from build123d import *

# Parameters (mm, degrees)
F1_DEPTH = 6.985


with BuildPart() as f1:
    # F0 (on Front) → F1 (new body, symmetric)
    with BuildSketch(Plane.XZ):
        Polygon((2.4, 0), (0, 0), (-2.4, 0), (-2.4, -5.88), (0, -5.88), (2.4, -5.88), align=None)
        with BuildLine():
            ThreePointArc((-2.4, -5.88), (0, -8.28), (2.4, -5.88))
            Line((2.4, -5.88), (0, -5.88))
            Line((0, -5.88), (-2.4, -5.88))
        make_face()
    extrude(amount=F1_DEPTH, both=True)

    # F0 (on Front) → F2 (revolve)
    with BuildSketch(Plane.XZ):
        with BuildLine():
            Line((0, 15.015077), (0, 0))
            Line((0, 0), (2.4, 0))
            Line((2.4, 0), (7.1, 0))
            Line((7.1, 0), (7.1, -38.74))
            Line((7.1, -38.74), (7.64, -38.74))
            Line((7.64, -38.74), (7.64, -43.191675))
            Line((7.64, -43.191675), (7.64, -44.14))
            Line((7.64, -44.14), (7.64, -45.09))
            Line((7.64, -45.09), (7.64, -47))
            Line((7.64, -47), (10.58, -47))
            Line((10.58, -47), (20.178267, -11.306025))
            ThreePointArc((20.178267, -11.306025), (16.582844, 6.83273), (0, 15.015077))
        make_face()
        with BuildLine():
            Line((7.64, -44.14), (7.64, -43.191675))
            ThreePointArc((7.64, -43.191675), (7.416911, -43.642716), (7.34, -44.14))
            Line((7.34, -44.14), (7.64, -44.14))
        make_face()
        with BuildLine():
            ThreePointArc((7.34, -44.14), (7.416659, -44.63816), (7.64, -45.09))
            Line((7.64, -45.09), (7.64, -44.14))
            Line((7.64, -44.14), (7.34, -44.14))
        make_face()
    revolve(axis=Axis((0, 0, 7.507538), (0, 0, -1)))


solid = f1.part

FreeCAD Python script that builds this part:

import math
import FreeCAD as App
import Part
import Sketcher

V = App.Vector

doc = App.newDocument("Part")
body = doc.addObject("PartDesign::Body", "Body")

# Sketch on XZ plane
sketch1 = doc.addObject("Sketcher::SketchObject", "Sketch")
body.addObject(sketch1)
sketch1.AttachmentSupport = (doc.XZ_Plane, [""])
sketch1.MapMode = "FlatFace"
sketch1.addGeometry([
    Part.LineSegment(V(2.4, 0, 0), V(-2.4, 0, 0)),
    Part.LineSegment(V(-2.4, 0, 0), V(-2.4, -5.9, 0)),
    Part.ArcOfCircle(Part.Circle(V(0, -5.9, 0), V(0, 0, 1), 2.4), math.radians(180), math.radians(360)),
    Part.LineSegment(V(2.4, -5.9, 0), V(2.4, 0, 0)),
], False)
sketch1.addConstraint([
    Sketcher.Constraint("Coincident", 0, 2, 1, 1),
    Sketcher.Constraint("Tangent", 1, 2, 2, 1),
    Sketcher.Constraint("Tangent", 2, 2, 3, 1),
    Sketcher.Constraint("Coincident", 3, 2, 0, 1),
    Sketcher.Constraint("Horizontal", 0),
    Sketcher.Constraint("Vertical", 1),
    Sketcher.Constraint("Vertical", 3),
    Sketcher.Constraint("Symmetric", 0, 2, 3, 2, -1, 1),
    Sketcher.Constraint("Radius", 2, 2.4),
    Sketcher.Constraint("DistanceY", 1, 2, 1, 1, 5.88),
])
pad1 = doc.addObject("PartDesign::Pad", "Pad")
body.addObject(pad1)
pad1.Profile = sketch1
pad1.Length = 13.97
pad1.Midplane = True

# Sketch on XZ plane
sketch2 = doc.addObject("Sketcher::SketchObject", "Sketch001")
body.addObject(sketch2)
sketch2.AttachmentSupport = (doc.XZ_Plane, [""])
sketch2.MapMode = "FlatFace"
sketch2.addGeometry([
    Part.LineSegment(V(0, 15, 0), V(0, 0, 0)),  # 0
    Part.LineSegment(V(0, 0, 0), V(7.1, 0, 0)),  # 1
    Part.LineSegment(V(7.1, 0, 0), V(7.1, -38.7, 0)),  # 2
    Part.LineSegment(V(7.1, -38.7, 0), V(7.6, -38.7, 0)),  # 3
    Part.LineSegment(V(7.6, -38.7, 0), V(7.6, -43.2, 0)),  # 4
    Part.ArcOfCircle(Part.Circle(V(9, -44.1, 0), V(0, 0, 1), 1.7), math.radians(145), math.radians(180)),  # 5
    Part.ArcOfCircle(Part.Circle(V(9, -44.1, 0), V(0, 0, 1), 1.7), math.radians(180), math.radians(215)),  # 6
    Part.LineSegment(V(7.6, -45.1, 0), V(7.6, -47, 0)),  # 7
    Part.LineSegment(V(7.6, -47, 0), V(10.6, -47, 0)),  # 8
    Part.LineSegment(V(10.6, -47, 0), V(20.2, -11.3, 0)),  # 9
    Part.ArcOfCircle(Part.Circle(V(0, -5.9, 0), V(0, 0, 1), 20.9), math.radians(-15), math.radians(90)),  # 10
], False)
sketch2.addConstraint([
    Sketcher.Constraint("Coincident", 0, 2, 1, 1),
    Sketcher.Constraint("Coincident", 1, 2, 2, 1),
    Sketcher.Constraint("Coincident", 2, 2, 3, 1),
    Sketcher.Constraint("Coincident", 3, 2, 4, 1),
    Sketcher.Constraint("Coincident", 4, 2, 5, 1),
    Sketcher.Constraint("Tangent", 5, 2, 6, 1),
    Sketcher.Constraint("Coincident", 6, 2, 7, 1),
    Sketcher.Constraint("Coincident", 7, 2, 8, 1),
    Sketcher.Constraint("Coincident", 8, 2, 9, 1),
    Sketcher.Constraint("Tangent", 9, 2, 10, 1),
    Sketcher.Constraint("Coincident", 10, 2, 0, 1),
    Sketcher.Constraint("Vertical", 0),
    Sketcher.Constraint("Horizontal", 1),
    Sketcher.Constraint("Vertical", 2),
    Sketcher.Constraint("Horizontal", 3),
    Sketcher.Constraint("Vertical", 4),
    Sketcher.Constraint("Vertical", 7),
    Sketcher.Constraint("Horizontal", 8),
    Sketcher.Constraint("Coincident", 0, 2, -1, 1),
    Sketcher.Constraint("PointOnObject", 10, 3, -2),
    Sketcher.Constraint("Vertical", 4, 2, 6, 2),
    Sketcher.Constraint("DistanceX", 1, 1, 1, 2, 7.1),
    Sketcher.Constraint("DistanceY", 7, 2, -1, 1, 47.0),
    Sketcher.Constraint("DistanceX", 3, 1, 3, 2, 0.54),
    Sketcher.Constraint("DistanceX", 8, 1, 8, 2, 2.94),
    Sketcher.Constraint("DistanceY", 2, 2, 2, 1, 38.74),
    Sketcher.Constraint("DistanceY", 7, 2, 7, 1, 1.91),
    Sketcher.Constraint("DistanceX", 5, 2, 4, 2, 0.3),
    Sketcher.Constraint("DistanceY", 5, 2, 2, 2, 5.4),
    Sketcher.Constraint("DistanceY", 10, 3, -1, 1, 5.88),
    Sketcher.Constraint("Radius", 5, 1.651513),
    Sketcher.Constraint("Radius", 6, 1.651523),
    Sketcher.Constraint("Radius", 10, 20.895077),
])
revolution = doc.addObject("PartDesign::Revolution", "Revolution")
body.addObject(revolution)
revolution.Profile = sketch2
revolution.ReferenceAxis = (sketch2, ["V_Axis"])
revolution.Angle = 360

doc.recompute()
